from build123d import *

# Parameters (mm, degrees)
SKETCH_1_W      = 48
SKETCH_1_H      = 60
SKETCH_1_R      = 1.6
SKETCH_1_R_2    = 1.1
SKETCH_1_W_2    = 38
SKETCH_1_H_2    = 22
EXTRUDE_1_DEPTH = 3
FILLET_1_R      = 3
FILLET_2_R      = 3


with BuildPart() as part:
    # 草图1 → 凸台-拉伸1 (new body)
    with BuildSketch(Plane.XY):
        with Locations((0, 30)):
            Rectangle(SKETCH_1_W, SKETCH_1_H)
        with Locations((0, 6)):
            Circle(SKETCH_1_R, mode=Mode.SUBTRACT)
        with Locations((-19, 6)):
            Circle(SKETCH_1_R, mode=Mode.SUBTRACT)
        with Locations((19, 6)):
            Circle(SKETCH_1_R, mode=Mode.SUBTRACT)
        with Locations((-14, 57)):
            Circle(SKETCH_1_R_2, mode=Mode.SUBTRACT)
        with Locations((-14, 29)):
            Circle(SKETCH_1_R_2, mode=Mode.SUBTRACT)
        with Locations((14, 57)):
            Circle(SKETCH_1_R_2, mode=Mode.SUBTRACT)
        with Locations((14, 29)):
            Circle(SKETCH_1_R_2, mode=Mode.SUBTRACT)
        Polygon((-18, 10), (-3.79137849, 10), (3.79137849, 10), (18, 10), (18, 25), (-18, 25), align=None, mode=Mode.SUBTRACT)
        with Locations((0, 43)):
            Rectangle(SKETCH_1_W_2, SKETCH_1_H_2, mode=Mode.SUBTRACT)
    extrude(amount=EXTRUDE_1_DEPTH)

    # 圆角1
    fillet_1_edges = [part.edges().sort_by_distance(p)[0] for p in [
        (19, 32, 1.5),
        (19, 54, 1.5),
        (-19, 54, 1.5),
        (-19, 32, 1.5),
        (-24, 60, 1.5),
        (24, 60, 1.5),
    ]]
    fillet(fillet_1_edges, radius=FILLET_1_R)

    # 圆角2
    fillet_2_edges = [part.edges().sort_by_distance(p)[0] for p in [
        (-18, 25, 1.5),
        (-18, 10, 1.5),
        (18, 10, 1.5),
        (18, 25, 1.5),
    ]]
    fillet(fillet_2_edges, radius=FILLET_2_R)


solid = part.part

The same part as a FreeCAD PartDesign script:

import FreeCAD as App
import Part
import Sketcher


def edges_at(feature, points):
    """Names of the edges that pass closest to the given points."""
    edges = feature.Shape.Edges
    near = lambda p: min(range(len(edges)), key=lambda i: edges[i].distToShape(Part.Vertex(*p))[0])
    return sorted({f"Edge{near(p) + 1}" for p in points})

doc = App.newDocument("Part")
body = doc.addObject("PartDesign::Body", "Body")

# Sketch on XY plane
sketch1 = body.newObject("Sketcher::SketchObject", "Sketch")
sketch1.AttachmentSupport = (doc.getObject("XY_Plane"), [""])
sketch1.MapMode = "FlatFace"
sketch1.addGeometry(Part.LineSegment(App.Vector(-24, 60, 0), App.Vector(-24, 0, 0)), False)
sketch1.addGeometry(Part.LineSegment(App.Vector(-24, 0, 0), App.Vector(24, 0, 0)), False)
sketch1.addGeometry(Part.LineSegment(App.Vector(24, 0, 0), App.Vector(24, 60, 0)), False)
sketch1.addGeometry(Part.LineSegment(App.Vector(24, 60, 0), App.Vector(-24, 60, 0)), False)
sketch1.addGeometry(Part.Circle(App.Vector(-19, 6, 0), App.Vector(0, 0, 1), 1.6), False)
sketch1.addGeometry(Part.Circle(App.Vector(-14, 29, 0), App.Vector(0, 0, 1), 1.1), False)
sketch1.addGeometry(Part.Circle(App.Vector(0, 6, 0), App.Vector(0, 0, 1), 1.6), False)
sketch1.addGeometry(Part.LineSegment(App.Vector(18, 10, 0), App.Vector(-18, 10, 0)), False)
sketch1.addGeometry(Part.LineSegment(App.Vector(-18, 10, 0), App.Vector(-18, 25, 0)), False)
sketch1.addGeometry(Part.LineSegment(App.Vector(-18, 25, 0), App.Vector(18, 25, 0)), False)
sketch1.addGeometry(Part.LineSegment(App.Vector(18, 25, 0), App.Vector(18, 10, 0)), False)
sketch1.addGeometry(Part.Circle(App.Vector(19, 6, 0), App.Vector(0, 0, 1), 1.6), False)
sketch1.addGeometry(Part.Circle(App.Vector(14, 29, 0), App.Vector(0, 0, 1), 1.1), False)
sketch1.addGeometry(Part.Circle(App.Vector(-14, 57, 0), App.Vector(0, 0, 1), 1.1), False)
sketch1.addGeometry(Part.LineSegment(App.Vector(19, 32, 0), App.Vector(-19, 32, 0)), False)
sketch1.addGeometry(Part.LineSegment(App.Vector(-19, 32, 0), App.Vector(-19, 54, 0)), False)
sketch1.addGeometry(Part.LineSegment(App.Vector(-19, 54, 0), App.Vector(19, 54, 0)), False)
sketch1.addGeometry(Part.LineSegment(App.Vector(19, 54, 0), App.Vector(19, 32, 0)), False)
sketch1.addGeometry(Part.Circle(App.Vector(14, 57, 0), App.Vector(0, 0, 1), 1.1), False)
sketch1.addConstraint(Sketcher.Constraint("Coincident", 0, 2, 1, 1))
sketch1.addConstraint(Sketcher.Constraint("Coincident", 1, 2, 2, 1))
sketch1.addConstraint(Sketcher.Constraint("Coincident", 2, 2, 3, 1))
sketch1.addConstraint(Sketcher.Constraint("Coincident", 3, 2, 0, 1))
sketch1.addConstraint(Sketcher.Constraint("Coincident", 7, 2, 8, 1))
sketch1.addConstraint(Sketcher.Constraint("Coincident", 8, 2, 9, 1))
sketch1.addConstraint(Sketcher.Constraint("Coincident", 9, 2, 10, 1))
sketch1.addConstraint(Sketcher.Constraint("Coincident", 10, 2, 7, 1))
sketch1.addConstraint(Sketcher.Constraint("Coincident", 14, 2, 15, 1))
sketch1.addConstraint(Sketcher.Constraint("Coincident", 15, 2, 16, 1))
sketch1.addConstraint(Sketcher.Constraint("Coincident", 16, 2, 17, 1))
sketch1.addConstraint(Sketcher.Constraint("Coincident", 17, 2, 14, 1))
sketch1.addConstraint(Sketcher.Constraint("Vertical", 0))
sketch1.addConstraint(Sketcher.Constraint("Horizontal", 1))
sketch1.addConstraint(Sketcher.Constraint("Vertical", 2))
sketch1.addConstraint(Sketcher.Constraint("Horizontal", 3))
sketch1.addConstraint(Sketcher.Constraint("Horizontal", 7))
sketch1.addConstraint(Sketcher.Constraint("Vertical", 8))
sketch1.addConstraint(Sketcher.Constraint("Horizontal", 9))
sketch1.addConstraint(Sketcher.Constraint("Vertical", 10))
sketch1.addConstraint(Sketcher.Constraint("Horizontal", 14))
sketch1.addConstraint(Sketcher.Constraint("Vertical", 15))
sketch1.addConstraint(Sketcher.Constraint("Horizontal", 16))
sketch1.addConstraint(Sketcher.Constraint("Vertical", 17))
sketch1.addConstraint(Sketcher.Constraint("Equal", 4, 6))
sketch1.addConstraint(Sketcher.Constraint("Equal", 6, 11))
sketch1.addConstraint(Sketcher.Constraint("Equal", 5, 12))
sketch1.addConstraint(Sketcher.Constraint("Equal", 12, 13))
sketch1.addConstraint(Sketcher.Constraint("Equal", 13, 18))
sketch1.addConstraint(Sketcher.Constraint("Symmetric", 0, 2, 1, 2, -1, 1))
sketch1.addConstraint(Sketcher.Constraint("Symmetric", 4, 3, 11, 3, -2))
sketch1.addConstraint(Sketcher.Constraint("Symmetric", 5, 3, 12, 3, -2))
sketch1.addConstraint(Sketcher.Constraint("Symmetric", 13, 3, 18, 3, -2))
sketch1.addConstraint(Sketcher.Constraint("PointOnObject", 6, 3, -2))
sketch1.addConstraint(Sketcher.Constraint("Horizontal", 4, 3, 6, 3))
sketch1.addConstraint(Sketcher.Constraint("Vertical", 5, 3, 13, 3))
sketch1.addConstraint(Sketcher.Constraint("Vertical", 4, 3, 14, 2))
sketch1.addConstraint(Sketcher.Constraint("Vertical", 11, 3, 16, 2))
sketch1.addConstraint(Sketcher.Constraint("Diameter", 4, 3.2))
sketch1.addConstraint(Sketcher.Constraint("Diameter", 5, 2.2))
sketch1.addConstraint(Sketcher.Constraint("DistanceX", 1, 1, 1, 2, 48.0))
sketch1.addConstraint(Sketcher.Constraint("DistanceX", 7, 2, 7, 1, 36.0))
sketch1.addConstraint(Sketcher.Constraint("DistanceX", 14, 2, 14, 1, 38.0))
sketch1.addConstraint(Sketcher.Constraint("DistanceY", 0, 2, 0, 1, 60.0))
sketch1.addConstraint(Sketcher.Constraint("DistanceY", 8, 1, 8, 2, 15.0))
sketch1.addConstraint(Sketcher.Constraint("DistanceY", 15, 1, 15, 2, 22.0))
sketch1.addConstraint(Sketcher.Constraint("DistanceY", -1, 1, 4, 3, 6.0))
sketch1.addConstraint(Sketcher.Constraint("DistanceX", 5, 3, -1, 1, 14.0))
sketch1.addConstraint(Sketcher.Constraint("DistanceY", -1, 1, 5, 3, 29.0))
sketch1.addConstraint(Sketcher.Constraint("DistanceY", -1, 1, 13, 3, 57.0))
sketch1.addConstraint(Sketcher.Constraint("DistanceX", 7, 2, -1, 1, 18.0))
sketch1.addConstraint(Sketcher.Constraint("DistanceY", -1, 1, 7, 2, 10.0))
sketch1.addConstraint(Sketcher.Constraint("DistanceY", -1, 1, 14, 2, 32.0))
pad1 = body.newObject("PartDesign::Pad", "Pad")
pad1.Profile = sketch1
pad1.Length = 3
doc.recompute()

fillet = body.newObject("PartDesign::Fillet", "Fillet")
fillet.Base = (pad1, edges_at(pad1, [
    (19, 32, 1.5),
    (19, 54, 1.5),
    (-19, 54, 1.5),
    (-19, 32, 1.5),
    (-24, 60, 1.5),
    (24, 60, 1.5),
]))
fillet.Radius = 3
doc.recompute()

fillet2 = body.newObject("PartDesign::Fillet", "Fillet001")
fillet2.Base = (fillet, edges_at(fillet, [
    (-18, 25, 1.5),
    (-18, 10, 1.5),
    (18, 10, 1.5),
    (18, 25, 1.5),
]))
fillet2.Radius = 3

doc.recompute()
